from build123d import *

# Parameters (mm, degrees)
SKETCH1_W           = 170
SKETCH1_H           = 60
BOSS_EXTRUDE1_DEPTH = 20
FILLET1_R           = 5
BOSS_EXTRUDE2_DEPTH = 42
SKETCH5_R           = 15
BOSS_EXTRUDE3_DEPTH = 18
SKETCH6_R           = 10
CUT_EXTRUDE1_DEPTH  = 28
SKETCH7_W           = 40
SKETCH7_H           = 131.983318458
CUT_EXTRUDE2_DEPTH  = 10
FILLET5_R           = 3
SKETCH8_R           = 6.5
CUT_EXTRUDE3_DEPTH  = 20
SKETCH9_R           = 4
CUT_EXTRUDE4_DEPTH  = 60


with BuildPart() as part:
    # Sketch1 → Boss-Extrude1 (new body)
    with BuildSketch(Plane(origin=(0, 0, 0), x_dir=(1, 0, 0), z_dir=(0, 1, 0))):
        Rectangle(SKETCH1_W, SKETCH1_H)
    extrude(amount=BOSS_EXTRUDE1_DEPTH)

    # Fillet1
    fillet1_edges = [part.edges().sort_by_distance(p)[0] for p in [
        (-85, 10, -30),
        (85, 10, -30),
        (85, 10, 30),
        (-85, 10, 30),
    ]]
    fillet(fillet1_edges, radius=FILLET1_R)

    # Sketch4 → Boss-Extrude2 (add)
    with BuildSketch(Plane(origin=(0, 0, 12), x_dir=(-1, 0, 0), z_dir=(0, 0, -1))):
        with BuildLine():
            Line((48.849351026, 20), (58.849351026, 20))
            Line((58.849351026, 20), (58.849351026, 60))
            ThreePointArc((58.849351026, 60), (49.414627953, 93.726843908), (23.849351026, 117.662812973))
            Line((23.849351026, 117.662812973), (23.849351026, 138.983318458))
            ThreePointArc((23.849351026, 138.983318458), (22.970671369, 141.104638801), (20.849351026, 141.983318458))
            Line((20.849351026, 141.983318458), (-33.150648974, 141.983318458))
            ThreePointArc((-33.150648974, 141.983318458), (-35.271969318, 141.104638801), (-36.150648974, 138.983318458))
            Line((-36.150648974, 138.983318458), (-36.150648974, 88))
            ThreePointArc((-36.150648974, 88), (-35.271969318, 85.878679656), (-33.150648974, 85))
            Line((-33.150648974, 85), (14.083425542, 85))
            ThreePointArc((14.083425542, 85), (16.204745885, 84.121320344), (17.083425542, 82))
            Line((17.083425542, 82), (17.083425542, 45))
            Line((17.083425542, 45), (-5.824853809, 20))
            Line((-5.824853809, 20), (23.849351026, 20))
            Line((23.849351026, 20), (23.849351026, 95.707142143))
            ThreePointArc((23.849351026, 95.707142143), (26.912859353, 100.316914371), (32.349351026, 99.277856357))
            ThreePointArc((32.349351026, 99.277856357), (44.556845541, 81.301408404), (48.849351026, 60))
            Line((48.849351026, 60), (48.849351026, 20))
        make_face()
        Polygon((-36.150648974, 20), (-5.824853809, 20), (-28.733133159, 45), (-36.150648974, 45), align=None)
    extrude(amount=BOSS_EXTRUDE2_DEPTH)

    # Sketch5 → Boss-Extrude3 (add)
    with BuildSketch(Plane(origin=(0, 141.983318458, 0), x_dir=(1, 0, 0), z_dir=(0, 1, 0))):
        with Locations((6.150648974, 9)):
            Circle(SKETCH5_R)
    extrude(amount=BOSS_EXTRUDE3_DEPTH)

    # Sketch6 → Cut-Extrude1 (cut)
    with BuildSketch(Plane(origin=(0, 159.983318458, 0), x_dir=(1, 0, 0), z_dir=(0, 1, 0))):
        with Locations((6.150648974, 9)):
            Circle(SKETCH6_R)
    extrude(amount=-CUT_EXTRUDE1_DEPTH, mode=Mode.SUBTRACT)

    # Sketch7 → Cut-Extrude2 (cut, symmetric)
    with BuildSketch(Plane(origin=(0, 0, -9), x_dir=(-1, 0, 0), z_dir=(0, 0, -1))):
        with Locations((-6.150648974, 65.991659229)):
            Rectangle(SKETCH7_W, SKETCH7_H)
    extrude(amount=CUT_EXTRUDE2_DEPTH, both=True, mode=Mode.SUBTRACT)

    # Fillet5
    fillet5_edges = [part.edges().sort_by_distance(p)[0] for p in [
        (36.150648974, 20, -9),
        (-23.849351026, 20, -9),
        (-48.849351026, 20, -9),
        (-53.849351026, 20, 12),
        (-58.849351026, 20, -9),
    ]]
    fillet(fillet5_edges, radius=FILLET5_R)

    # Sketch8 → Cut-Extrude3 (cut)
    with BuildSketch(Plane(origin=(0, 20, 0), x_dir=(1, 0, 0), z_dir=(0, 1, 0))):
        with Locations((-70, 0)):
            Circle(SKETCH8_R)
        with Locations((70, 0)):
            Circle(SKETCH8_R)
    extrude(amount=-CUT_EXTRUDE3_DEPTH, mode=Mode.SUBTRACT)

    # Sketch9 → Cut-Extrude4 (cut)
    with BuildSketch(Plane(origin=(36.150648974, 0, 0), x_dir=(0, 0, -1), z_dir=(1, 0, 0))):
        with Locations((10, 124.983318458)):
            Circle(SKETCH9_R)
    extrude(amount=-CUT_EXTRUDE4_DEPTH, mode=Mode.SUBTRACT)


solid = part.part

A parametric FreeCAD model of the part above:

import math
import FreeCAD as App
import Part
import Sketcher
Q = App.Units.Quantity


def edges_at(feature, points):
    """Names of the edges that pass closest to the given points."""
    edges = feature.Shape.Edges
    near = lambda p: min(range(len(edges)), key=lambda i: edges[i].distToShape(Part.Vertex(*p))[0])
    return sorted({f"Edge{near(p) + 1}" for p in points})

doc = App.newDocument("Part")
params = doc.addObject("Spreadsheet::Sheet", "Params")
for row, (alias, value) in enumerate([
    ("sketch1_width", "170 mm"),
    ("sketch1_height", "60 mm"),
    ("pad1_length", "20 mm"),
    ("fillet_radius", "5 mm"),
    ("sketch2_radius", "65 mm"),
    ("sketch2_radius2", "3 mm"),
    ("sketch2_radius3", "5 mm"),
    ("sketch2_radius4", "55 mm"),
    ("sketch2_width", "54 mm"),
    ("pad2_length", "42 mm"),
    ("sketch3_diameter", "30 mm"),
    ("pad3_length", "18 mm"),
    ("sketch4_diameter", "20 mm"),
    ("pocket1_length", "28 mm"),
    ("sketch5_width", "40 mm"),
    ("pocket2_length", "20 mm"),
    ("fillet2_radius", "3 mm"),
    ("sketch6_diameter", "13 mm"),
    ("pocket3_length", "20 mm"),
    ("sketch7_diameter", "8 mm"),
    ("pocket4_length", "60 mm"),
], start=1):
    params.set(f"A{row}", alias)
    params.set(f"B{row}", "=" + value)
    params.setAlias(f"B{row}", alias)

body = doc.addObject("PartDesign::Body", "Body")

sketch1 = body.newObject("Sketcher::SketchObject", "Sketch")
sketch1.AttachmentSupport = (doc.getObject("XZ_Plane"), [""])
sketch1.MapMode = "FlatFace"
sketch1.addGeometry([
    Part.LineSegment(App.Vector(-85, -30, 0), App.Vector(-85, 30, 0)),
    Part.LineSegment(App.Vector(-85, 30, 0), App.Vector(85, 30, 0)),
    Part.LineSegment(App.Vector(85, 30, 0), App.Vector(85, -30, 0)),
    Part.LineSegment(App.Vector(85, -30, 0), App.Vector(-85, -30, 0)),
], False)
sketch1.addConstraint([
    Sketcher.Constraint("Coincident", 0, 2, 1, 1),
    Sketcher.Constraint("Coincident", 1, 2, 2, 1),
    Sketcher.Constraint("Coincident", 2, 2, 3, 1),
    Sketcher.Constraint("Coincident", 3, 2, 0, 1),
    Sketcher.Constraint("Vertical", 0),
    Sketcher.Constraint("Horizontal", 1),
    Sketcher.Constraint("Vertical", 2),
    Sketcher.Constraint("Horizontal", 3),
    Sketcher.Constraint("Symmetric", 0, 2, 2, 2, -1, 1),
    Sketcher.Constraint("DistanceX", 1, 1, 1, 2, Q("170 mm")),
    Sketcher.Constraint("DistanceY", 0, 1, 0, 2, Q("60 mm")),
])
sketch1.setExpression("Constraints[9]", "Params.sketch1_width")
sketch1.setExpression("Constraints[10]", "Params.sketch1_height")
pad1 = body.newObject("PartDesign::Pad", "Pad")
pad1.Profile = sketch1
pad1.setExpression("Length", "Params.pad1_length")
pad1.Reversed = True
doc.recompute()

fillet = body.newObject("PartDesign::Fillet", "Fillet")
fillet.Base = (pad1, edges_at(pad1, [
    (-85, 10, -30),
    (85, 10, -30),
    (85, 10, 30),
    (-85, 10, 30),
]))
fillet.setExpression("Radius", "Params.fillet_radius")

sketch2 = body.newObject("Sketcher::SketchObject", "Sketch001")
sketch2.AttachmentSupport = (doc.getObject("XY_Plane"), [""])
sketch2.MapMode = "FlatFace"
sketch2.AttachmentOffset = App.Placement(App.Vector(0, 0, 12), App.Rotation())
sketch2.addGeometry([
    Part.LineSegment(App.Vector(-48.8, 20, 0), App.Vector(-58.8, 20, 0)),
    Part.LineSegment(App.Vector(-58.8, 20, 0), App.Vector(-58.8, 60, 0)),
    Part.ArcOfCircle(Part.Circle(App.Vector(6.2, 60, 0), App.Vector(0, 0, 1), 65), math.radians(117), math.radians(180)),
    Part.LineSegment(App.Vector(-23.8, 117.7, 0), App.Vector(-23.8, 139, 0)),
    Part.ArcOfCircle(Part.Circle(App.Vector(-20.8, 139, 0), App.Vector(0, 0, 1), 3), math.radians(90), math.radians(180)),
    Part.LineSegment(App.Vector(-20.8, 142, 0), App.Vector(33.2, 142, 0)),
    Part.ArcOfCircle(Part.Circle(App.Vector(33.2, 139, 0), App.Vector(0, 0, 1), 3), math.radians(0), math.radians(90)),
    Part.LineSegment(App.Vector(36.2, 139, 0), App.Vector(36.2, 88, 0)),
    Part.ArcOfCircle(Part.Circle(App.Vector(33.2, 88, 0), App.Vector(0, 0, 1), 3), math.radians(-90), math.radians(0)),
    Part.LineSegment(App.Vector(33.2, 85, 0), App.Vector(-14.1, 85, 0)),
    Part.ArcOfCircle(Part.Circle(App.Vector(-14.1, 82, 0), App.Vector(0, 0, 1), 3), math.radians(90), math.radians(180)),
    Part.LineSegment(App.Vector(-17.1, 82, 0), App.Vector(-17.1, 45, 0)),
    Part.LineSegment(App.Vector(-17.1, 45, 0), App.Vector(5.8, 20, 0)),
    Part.LineSegment(App.Vector(5.8, 20, 0), App.Vector(-23.8, 20, 0)),
    Part.LineSegment(App.Vector(-23.8, 20, 0), App.Vector(-23.8, 95.7, 0)),
    Part.ArcOfCircle(Part.Circle(App.Vector(-28.8, 95.7, 0), App.Vector(0, 0, 1), 5), math.radians(0), math.radians(134)),
    Part.ArcOfCircle(Part.Circle(App.Vector(6.2, 60, 0), App.Vector(0, 0, 1), 55), math.radians(134), math.radians(180)),
    Part.LineSegment(App.Vector(-48.8, 60, 0), App.Vector(-48.8, 20, 0)),
    Part.LineSegment(App.Vector(36.2, 20, 0), App.Vector(5.8, 20, 0)),
    Part.LineSegment(App.Vector(5.8, 20, 0), App.Vector(28.7, 45, 0)),
    Part.LineSegment(App.Vector(28.7, 45, 0), App.Vector(36.2, 45, 0)),
    Part.LineSegment(App.Vector(36.2, 45, 0), App.Vector(36.2, 20, 0)),
], False)
sketch2.addConstraint([
    Sketcher.Constraint("Coincident", 0, 2, 1, 1),
    Sketcher.Constraint("Tangent", 1, 2, 2, 2),
    Sketcher.Constraint("Coincident", 2, 1, 3, 1),
    Sketcher.Constraint("Tangent", 3, 2, 4, 2),
    Sketcher.Constraint("Tangent", 4, 1, 5, 1),
    Sketcher.Constraint("Tangent", 5, 2, 6, 2),
    Sketcher.Constraint("Tangent", 6, 1, 7, 1),
    Sketcher.Constraint("Tangent", 7, 2, 8, 2),
    Sketcher.Constraint("Tangent", 8, 1, 9, 1),
    Sketcher.Constraint("Tangent", 9, 2, 10, 1),
    Sketcher.Constraint("Tangent", 10, 2, 11, 1),
    Sketcher.Constraint("Coincident", 11, 2, 12, 1),
    Sketcher.Constraint("Coincident", 12, 2, 13, 1),
    Sketcher.Constraint("Coincident", 13, 2, 14, 1),
    Sketcher.Constraint("Tangent", 14, 2, 15, 1),
    Sketcher.Constraint("Tangent", 15, 2, 16, 1),
    Sketcher.Constraint("Tangent", 16, 2, 17, 1),
    Sketcher.Constraint("Coincident", 17, 2, 0, 1),
    Sketcher.Constraint("Coincident", 18, 2, 19, 1),
    Sketcher.Constraint("Coincident", 19, 2, 20, 1),
    Sketcher.Constraint("Coincident", 20, 2, 21, 1),
    Sketcher.Constraint("Coincident", 21, 2, 18, 1),
    Sketcher.Constraint("Horizontal", 0),
    Sketcher.Constraint("Vertical", 1),
    Sketcher.Constraint("Vertical", 3),
    Sketcher.Constraint("Horizontal", 5),
    Sketcher.Constraint("Vertical", 7),
    Sketcher.Constraint("Horizontal", 9),
    Sketcher.Constraint("Vertical", 11),
    Sketcher.Constraint("Horizontal", 13),
    Sketcher.Constraint("Vertical", 14),
    Sketcher.Constraint("Vertical", 17),
    Sketcher.Constraint("Horizontal", 18),
    Sketcher.Constraint("Horizontal", 20),
    Sketcher.Constraint("Vertical", 21),
    Sketcher.Constraint("Coincident", 16, 3, 2, 3),
    Sketcher.Constraint("Coincident", 18, 2, 12, 2),
    Sketcher.Constraint("Equal", 4, 6),
    Sketcher.Constraint("Equal", 6, 8),
    Sketcher.Constraint("Equal", 8, 10),
    Sketcher.Constraint("Horizontal", 0, 2, 12, 2),
    Sketcher.Constraint("Horizontal", 11, 2, 19, 2),
    Sketcher.Constraint("Vertical", 3, 2, 13, 2),
    Sketcher.Constraint("Vertical", 7, 2, 20, 2),
    Sketcher.Constraint("Equal", 12, 19),
    Sketcher.Constraint("Radius", 2, Q("65 mm")),
    Sketcher.Constraint("Radius", 4, Q("3 mm")),
    Sketcher.Constraint("Radius", 15, Q("5 mm")),
    Sketcher.Constraint("Radius", 16, Q("55 mm")),
    Sketcher.Constraint("DistanceX", 5, 1, 5, 2, Q("54 mm")),
    Sketcher.Constraint("DistanceY", 1, 1, 1, 2, Q("40 mm")),
    Sketcher.Constraint("DistanceY", 11, 2, 11, 1, Q("37 mm")),
    Sketcher.Constraint("DistanceY", 21, 2, 21, 1, Q("25 mm")),
    Sketcher.Constraint("DistanceY", -1, 1, 2, 3, Q("60 mm")),
    Sketcher.Constraint("Angle", 12, Q("-47.5 deg")),
    Sketcher.Constraint("DistanceX", 4, 3, 2, 3, Q("27 mm")),
    Sketcher.Constraint("DistanceY", 7, 2, 7, 1, Q("50.983318 mm")),
    Sketcher.Constraint("DistanceX", 9, 2, 9, 1, Q("47.234075 mm")),
    Sketcher.Constraint("DistanceX", -1, 1, 2, 3, Q("6.150649 mm")),
])
sketch2.setExpression("Constraints[45]", "Params.sketch2_radius")
sketch2.setExpression("Constraints[46]", "Params.sketch2_radius2")
sketch2.setExpression("Constraints[47]", "Params.sketch2_radius3")
sketch2.setExpression("Constraints[48]", "Params.sketch2_radius4")
sketch2.setExpression("Constraints[49]", "Params.sketch2_width")
pad2 = body.newObject("PartDesign::Pad", "Pad001")
pad2.Profile = sketch2
pad2.setExpression("Length", "Params.pad2_length")
pad2.Reversed = True

sketch3 = body.newObject("Sketcher::SketchObject", "Sketch002")
sketch3.AttachmentSupport = (doc.getObject("XZ_Plane"), [""])
sketch3.MapMode = "FlatFace"
sketch3.AttachmentOffset = App.Placement(App.Vector(0, 0, -141.983318), App.Rotation())
sketch3.addGeometry(Part.Circle(App.Vector(6, -9, 0), App.Vector(0, 0, 1), 15), False)
sketch3.addConstraint([
    Sketcher.Constraint("Diameter", 0, Q("30 mm")),
    Sketcher.Constraint("DistanceY", 0, 3, -1, 1, Q("9 mm")),
    Sketcher.Constraint("DistanceX", -1, 1, 0, 3, Q("6.150649 mm")),
])
sketch3.setExpression("Constraints[0]", "Params.sketch3_diameter")
pad3 = body.newObject("PartDesign::Pad", "Pad002")
pad3.Profile = sketch3
pad3.setExpression("Length", "Params.pad3_length")
pad3.Reversed = True

sketch4 = body.newObject("Sketcher::SketchObject", "Sketch003")
sketch4.AttachmentSupport = (doc.getObject("XZ_Plane"), [""])
sketch4.MapMode = "FlatFace"
sketch4.AttachmentOffset = App.Placement(App.Vector(0, 0, -159.983318), App.Rotation())
sketch4.addGeometry(Part.Circle(App.Vector(6, -9, 0), App.Vector(0, 0, 1), 10), False)
sketch4.addConstraint([
    Sketcher.Constraint("Diameter", 0, Q("20 mm")),
    Sketcher.Constraint("DistanceY", 0, 3, -1, 1, Q("9 mm")),
    Sketcher.Constraint("DistanceX", -1, 1, 0, 3, Q("6.150649 mm")),
])
sketch4.setExpression("Constraints[0]", "Params.sketch4_diameter")
pocket1 = body.newObject("PartDesign::Pocket", "Pocket")
pocket1.Profile = sketch4
pocket1.setExpression("Length", "Params.pocket1_length")
pocket1.Reversed = True

sketch5 = body.newObject("Sketcher::SketchObject", "Sketch004")
sketch5.AttachmentSupport = (doc.getObject("XY_Plane"), [""])
sketch5.MapMode = "FlatFace"
sketch5.AttachmentOffset = App.Placement(App.Vector(0, 0, -9), App.Rotation())
sketch5.addGeometry([
    Part.LineSegment(App.Vector(26, 132, 0), App.Vector(26, 0, 0)),
    Part.LineSegment(App.Vector(26, 0, 0), App.Vector(-14, 0, 0)),
    Part.LineSegment(App.Vector(-14, 0, 0), App.Vector(-14, 132, 0)),
    Part.LineSegment(App.Vector(-14, 132, 0), App.Vector(26, 132, 0)),
], False)
sketch5.addConstraint([
    Sketcher.Constraint("Coincident", 0, 2, 1, 1),
    Sketcher.Constraint("Coincident", 1, 2, 2, 1),
    Sketcher.Constraint("Coincident", 2, 2, 3, 1),
    Sketcher.Constraint("Coincident", 3, 2, 0, 1),
    Sketcher.Constraint("Vertical", 0),
    Sketcher.Constraint("Horizontal", 1),
    Sketcher.Constraint("Vertical", 2),
    Sketcher.Constraint("Horizontal", 3),
    Sketcher.Constraint("PointOnObject", 0, 2, -1),
    Sketcher.Constraint("DistanceX", 1, 2, 1, 1, Q("40 mm")),
    Sketcher.Constraint("DistanceY", 0, 2, 0, 1, Q("131.983318 mm")),
    Sketcher.Constraint("DistanceX", -1, 1, 0, 2, Q("26.150649 mm")),
])
sketch5.setExpression("Constraints[9]", "Params.sketch5_width")
pocket2 = body.newObject("PartDesign::Pocket", "Pocket001")
pocket2.Profile = sketch5
pocket2.setExpression("Length", "Params.pocket2_length")
pocket2.Midplane = True
doc.recompute()

fillet2 = body.newObject("PartDesign::Fillet", "Fillet001")
fillet2.Base = (pocket2, edges_at(pocket2, [
    (36.151, 20, -9),
    (-23.849, 20, -9),
    (-48.849, 20, -9),
    (-53.849, 20, 12),
    (-58.849, 20, -9),
]))
fillet2.setExpression("Radius", "Params.fillet2_radius")

sketch6 = body.newObject("Sketcher::SketchObject", "Sketch005")
sketch6.AttachmentSupport = (doc.getObject("XZ_Plane"), [""])
sketch6.MapMode = "FlatFace"
sketch6.AttachmentOffset = App.Placement(App.Vector(0, 0, -20), App.Rotation())
sketch6.addGeometry([
    Part.Circle(App.Vector(-70, 0, 0), App.Vector(0, 0, 1), 6),
    Part.Circle(App.Vector(70, 0, 0), App.Vector(0, 0, 1), 6),
], False)
sketch6.addConstraint([
    Sketcher.Constraint("Equal", 0, 1),
    Sketcher.Constraint("Symmetric", 0, 3, 1, 3, -1, 1),
    Sketcher.Constraint("PointOnObject", 0, 3, -1),
    Sketcher.Constraint("Diameter", 0, Q("13 mm")),
    Sketcher.Constraint("DistanceX", 0, 3, -1, 1, Q("70 mm")),
])
sketch6.setExpression("Constraints[3]", "Params.sketch6_diameter")
pocket3 = body.newObject("PartDesign::Pocket", "Pocket002")
pocket3.Profile = sketch6
pocket3.setExpression("Length", "Params.pocket3_length")
pocket3.Reversed = True

sketch7 = body.newObject("Sketcher::SketchObject", "Sketch006")
sketch7.AttachmentSupport = (doc.getObject("YZ_Plane"), [""])
sketch7.MapMode = "FlatFace"
sketch7.AttachmentOffset = App.Placement(App.Vector(0, 0, 36.150649), App.Rotation())
sketch7.addGeometry(Part.Circle(App.Vector(125, -10, 0), App.Vector(0, 0, 1), 4), False)
sketch7.addConstraint([
    Sketcher.Constraint("Diameter", 0, Q("8 mm")),
    Sketcher.Constraint("DistanceY", 0, 3, -1, 1, Q("10 mm")),
    Sketcher.Constraint("DistanceX", -1, 1, 0, 3, Q("124.983318 mm")),
])
sketch7.setExpression("Constraints[0]", "Params.sketch7_diameter")
pocket4 = body.newObject("PartDesign::Pocket", "Pocket003")
pocket4.Profile = sketch7
pocket4.setExpression("Length", "Params.pocket4_length")

doc.recompute()
